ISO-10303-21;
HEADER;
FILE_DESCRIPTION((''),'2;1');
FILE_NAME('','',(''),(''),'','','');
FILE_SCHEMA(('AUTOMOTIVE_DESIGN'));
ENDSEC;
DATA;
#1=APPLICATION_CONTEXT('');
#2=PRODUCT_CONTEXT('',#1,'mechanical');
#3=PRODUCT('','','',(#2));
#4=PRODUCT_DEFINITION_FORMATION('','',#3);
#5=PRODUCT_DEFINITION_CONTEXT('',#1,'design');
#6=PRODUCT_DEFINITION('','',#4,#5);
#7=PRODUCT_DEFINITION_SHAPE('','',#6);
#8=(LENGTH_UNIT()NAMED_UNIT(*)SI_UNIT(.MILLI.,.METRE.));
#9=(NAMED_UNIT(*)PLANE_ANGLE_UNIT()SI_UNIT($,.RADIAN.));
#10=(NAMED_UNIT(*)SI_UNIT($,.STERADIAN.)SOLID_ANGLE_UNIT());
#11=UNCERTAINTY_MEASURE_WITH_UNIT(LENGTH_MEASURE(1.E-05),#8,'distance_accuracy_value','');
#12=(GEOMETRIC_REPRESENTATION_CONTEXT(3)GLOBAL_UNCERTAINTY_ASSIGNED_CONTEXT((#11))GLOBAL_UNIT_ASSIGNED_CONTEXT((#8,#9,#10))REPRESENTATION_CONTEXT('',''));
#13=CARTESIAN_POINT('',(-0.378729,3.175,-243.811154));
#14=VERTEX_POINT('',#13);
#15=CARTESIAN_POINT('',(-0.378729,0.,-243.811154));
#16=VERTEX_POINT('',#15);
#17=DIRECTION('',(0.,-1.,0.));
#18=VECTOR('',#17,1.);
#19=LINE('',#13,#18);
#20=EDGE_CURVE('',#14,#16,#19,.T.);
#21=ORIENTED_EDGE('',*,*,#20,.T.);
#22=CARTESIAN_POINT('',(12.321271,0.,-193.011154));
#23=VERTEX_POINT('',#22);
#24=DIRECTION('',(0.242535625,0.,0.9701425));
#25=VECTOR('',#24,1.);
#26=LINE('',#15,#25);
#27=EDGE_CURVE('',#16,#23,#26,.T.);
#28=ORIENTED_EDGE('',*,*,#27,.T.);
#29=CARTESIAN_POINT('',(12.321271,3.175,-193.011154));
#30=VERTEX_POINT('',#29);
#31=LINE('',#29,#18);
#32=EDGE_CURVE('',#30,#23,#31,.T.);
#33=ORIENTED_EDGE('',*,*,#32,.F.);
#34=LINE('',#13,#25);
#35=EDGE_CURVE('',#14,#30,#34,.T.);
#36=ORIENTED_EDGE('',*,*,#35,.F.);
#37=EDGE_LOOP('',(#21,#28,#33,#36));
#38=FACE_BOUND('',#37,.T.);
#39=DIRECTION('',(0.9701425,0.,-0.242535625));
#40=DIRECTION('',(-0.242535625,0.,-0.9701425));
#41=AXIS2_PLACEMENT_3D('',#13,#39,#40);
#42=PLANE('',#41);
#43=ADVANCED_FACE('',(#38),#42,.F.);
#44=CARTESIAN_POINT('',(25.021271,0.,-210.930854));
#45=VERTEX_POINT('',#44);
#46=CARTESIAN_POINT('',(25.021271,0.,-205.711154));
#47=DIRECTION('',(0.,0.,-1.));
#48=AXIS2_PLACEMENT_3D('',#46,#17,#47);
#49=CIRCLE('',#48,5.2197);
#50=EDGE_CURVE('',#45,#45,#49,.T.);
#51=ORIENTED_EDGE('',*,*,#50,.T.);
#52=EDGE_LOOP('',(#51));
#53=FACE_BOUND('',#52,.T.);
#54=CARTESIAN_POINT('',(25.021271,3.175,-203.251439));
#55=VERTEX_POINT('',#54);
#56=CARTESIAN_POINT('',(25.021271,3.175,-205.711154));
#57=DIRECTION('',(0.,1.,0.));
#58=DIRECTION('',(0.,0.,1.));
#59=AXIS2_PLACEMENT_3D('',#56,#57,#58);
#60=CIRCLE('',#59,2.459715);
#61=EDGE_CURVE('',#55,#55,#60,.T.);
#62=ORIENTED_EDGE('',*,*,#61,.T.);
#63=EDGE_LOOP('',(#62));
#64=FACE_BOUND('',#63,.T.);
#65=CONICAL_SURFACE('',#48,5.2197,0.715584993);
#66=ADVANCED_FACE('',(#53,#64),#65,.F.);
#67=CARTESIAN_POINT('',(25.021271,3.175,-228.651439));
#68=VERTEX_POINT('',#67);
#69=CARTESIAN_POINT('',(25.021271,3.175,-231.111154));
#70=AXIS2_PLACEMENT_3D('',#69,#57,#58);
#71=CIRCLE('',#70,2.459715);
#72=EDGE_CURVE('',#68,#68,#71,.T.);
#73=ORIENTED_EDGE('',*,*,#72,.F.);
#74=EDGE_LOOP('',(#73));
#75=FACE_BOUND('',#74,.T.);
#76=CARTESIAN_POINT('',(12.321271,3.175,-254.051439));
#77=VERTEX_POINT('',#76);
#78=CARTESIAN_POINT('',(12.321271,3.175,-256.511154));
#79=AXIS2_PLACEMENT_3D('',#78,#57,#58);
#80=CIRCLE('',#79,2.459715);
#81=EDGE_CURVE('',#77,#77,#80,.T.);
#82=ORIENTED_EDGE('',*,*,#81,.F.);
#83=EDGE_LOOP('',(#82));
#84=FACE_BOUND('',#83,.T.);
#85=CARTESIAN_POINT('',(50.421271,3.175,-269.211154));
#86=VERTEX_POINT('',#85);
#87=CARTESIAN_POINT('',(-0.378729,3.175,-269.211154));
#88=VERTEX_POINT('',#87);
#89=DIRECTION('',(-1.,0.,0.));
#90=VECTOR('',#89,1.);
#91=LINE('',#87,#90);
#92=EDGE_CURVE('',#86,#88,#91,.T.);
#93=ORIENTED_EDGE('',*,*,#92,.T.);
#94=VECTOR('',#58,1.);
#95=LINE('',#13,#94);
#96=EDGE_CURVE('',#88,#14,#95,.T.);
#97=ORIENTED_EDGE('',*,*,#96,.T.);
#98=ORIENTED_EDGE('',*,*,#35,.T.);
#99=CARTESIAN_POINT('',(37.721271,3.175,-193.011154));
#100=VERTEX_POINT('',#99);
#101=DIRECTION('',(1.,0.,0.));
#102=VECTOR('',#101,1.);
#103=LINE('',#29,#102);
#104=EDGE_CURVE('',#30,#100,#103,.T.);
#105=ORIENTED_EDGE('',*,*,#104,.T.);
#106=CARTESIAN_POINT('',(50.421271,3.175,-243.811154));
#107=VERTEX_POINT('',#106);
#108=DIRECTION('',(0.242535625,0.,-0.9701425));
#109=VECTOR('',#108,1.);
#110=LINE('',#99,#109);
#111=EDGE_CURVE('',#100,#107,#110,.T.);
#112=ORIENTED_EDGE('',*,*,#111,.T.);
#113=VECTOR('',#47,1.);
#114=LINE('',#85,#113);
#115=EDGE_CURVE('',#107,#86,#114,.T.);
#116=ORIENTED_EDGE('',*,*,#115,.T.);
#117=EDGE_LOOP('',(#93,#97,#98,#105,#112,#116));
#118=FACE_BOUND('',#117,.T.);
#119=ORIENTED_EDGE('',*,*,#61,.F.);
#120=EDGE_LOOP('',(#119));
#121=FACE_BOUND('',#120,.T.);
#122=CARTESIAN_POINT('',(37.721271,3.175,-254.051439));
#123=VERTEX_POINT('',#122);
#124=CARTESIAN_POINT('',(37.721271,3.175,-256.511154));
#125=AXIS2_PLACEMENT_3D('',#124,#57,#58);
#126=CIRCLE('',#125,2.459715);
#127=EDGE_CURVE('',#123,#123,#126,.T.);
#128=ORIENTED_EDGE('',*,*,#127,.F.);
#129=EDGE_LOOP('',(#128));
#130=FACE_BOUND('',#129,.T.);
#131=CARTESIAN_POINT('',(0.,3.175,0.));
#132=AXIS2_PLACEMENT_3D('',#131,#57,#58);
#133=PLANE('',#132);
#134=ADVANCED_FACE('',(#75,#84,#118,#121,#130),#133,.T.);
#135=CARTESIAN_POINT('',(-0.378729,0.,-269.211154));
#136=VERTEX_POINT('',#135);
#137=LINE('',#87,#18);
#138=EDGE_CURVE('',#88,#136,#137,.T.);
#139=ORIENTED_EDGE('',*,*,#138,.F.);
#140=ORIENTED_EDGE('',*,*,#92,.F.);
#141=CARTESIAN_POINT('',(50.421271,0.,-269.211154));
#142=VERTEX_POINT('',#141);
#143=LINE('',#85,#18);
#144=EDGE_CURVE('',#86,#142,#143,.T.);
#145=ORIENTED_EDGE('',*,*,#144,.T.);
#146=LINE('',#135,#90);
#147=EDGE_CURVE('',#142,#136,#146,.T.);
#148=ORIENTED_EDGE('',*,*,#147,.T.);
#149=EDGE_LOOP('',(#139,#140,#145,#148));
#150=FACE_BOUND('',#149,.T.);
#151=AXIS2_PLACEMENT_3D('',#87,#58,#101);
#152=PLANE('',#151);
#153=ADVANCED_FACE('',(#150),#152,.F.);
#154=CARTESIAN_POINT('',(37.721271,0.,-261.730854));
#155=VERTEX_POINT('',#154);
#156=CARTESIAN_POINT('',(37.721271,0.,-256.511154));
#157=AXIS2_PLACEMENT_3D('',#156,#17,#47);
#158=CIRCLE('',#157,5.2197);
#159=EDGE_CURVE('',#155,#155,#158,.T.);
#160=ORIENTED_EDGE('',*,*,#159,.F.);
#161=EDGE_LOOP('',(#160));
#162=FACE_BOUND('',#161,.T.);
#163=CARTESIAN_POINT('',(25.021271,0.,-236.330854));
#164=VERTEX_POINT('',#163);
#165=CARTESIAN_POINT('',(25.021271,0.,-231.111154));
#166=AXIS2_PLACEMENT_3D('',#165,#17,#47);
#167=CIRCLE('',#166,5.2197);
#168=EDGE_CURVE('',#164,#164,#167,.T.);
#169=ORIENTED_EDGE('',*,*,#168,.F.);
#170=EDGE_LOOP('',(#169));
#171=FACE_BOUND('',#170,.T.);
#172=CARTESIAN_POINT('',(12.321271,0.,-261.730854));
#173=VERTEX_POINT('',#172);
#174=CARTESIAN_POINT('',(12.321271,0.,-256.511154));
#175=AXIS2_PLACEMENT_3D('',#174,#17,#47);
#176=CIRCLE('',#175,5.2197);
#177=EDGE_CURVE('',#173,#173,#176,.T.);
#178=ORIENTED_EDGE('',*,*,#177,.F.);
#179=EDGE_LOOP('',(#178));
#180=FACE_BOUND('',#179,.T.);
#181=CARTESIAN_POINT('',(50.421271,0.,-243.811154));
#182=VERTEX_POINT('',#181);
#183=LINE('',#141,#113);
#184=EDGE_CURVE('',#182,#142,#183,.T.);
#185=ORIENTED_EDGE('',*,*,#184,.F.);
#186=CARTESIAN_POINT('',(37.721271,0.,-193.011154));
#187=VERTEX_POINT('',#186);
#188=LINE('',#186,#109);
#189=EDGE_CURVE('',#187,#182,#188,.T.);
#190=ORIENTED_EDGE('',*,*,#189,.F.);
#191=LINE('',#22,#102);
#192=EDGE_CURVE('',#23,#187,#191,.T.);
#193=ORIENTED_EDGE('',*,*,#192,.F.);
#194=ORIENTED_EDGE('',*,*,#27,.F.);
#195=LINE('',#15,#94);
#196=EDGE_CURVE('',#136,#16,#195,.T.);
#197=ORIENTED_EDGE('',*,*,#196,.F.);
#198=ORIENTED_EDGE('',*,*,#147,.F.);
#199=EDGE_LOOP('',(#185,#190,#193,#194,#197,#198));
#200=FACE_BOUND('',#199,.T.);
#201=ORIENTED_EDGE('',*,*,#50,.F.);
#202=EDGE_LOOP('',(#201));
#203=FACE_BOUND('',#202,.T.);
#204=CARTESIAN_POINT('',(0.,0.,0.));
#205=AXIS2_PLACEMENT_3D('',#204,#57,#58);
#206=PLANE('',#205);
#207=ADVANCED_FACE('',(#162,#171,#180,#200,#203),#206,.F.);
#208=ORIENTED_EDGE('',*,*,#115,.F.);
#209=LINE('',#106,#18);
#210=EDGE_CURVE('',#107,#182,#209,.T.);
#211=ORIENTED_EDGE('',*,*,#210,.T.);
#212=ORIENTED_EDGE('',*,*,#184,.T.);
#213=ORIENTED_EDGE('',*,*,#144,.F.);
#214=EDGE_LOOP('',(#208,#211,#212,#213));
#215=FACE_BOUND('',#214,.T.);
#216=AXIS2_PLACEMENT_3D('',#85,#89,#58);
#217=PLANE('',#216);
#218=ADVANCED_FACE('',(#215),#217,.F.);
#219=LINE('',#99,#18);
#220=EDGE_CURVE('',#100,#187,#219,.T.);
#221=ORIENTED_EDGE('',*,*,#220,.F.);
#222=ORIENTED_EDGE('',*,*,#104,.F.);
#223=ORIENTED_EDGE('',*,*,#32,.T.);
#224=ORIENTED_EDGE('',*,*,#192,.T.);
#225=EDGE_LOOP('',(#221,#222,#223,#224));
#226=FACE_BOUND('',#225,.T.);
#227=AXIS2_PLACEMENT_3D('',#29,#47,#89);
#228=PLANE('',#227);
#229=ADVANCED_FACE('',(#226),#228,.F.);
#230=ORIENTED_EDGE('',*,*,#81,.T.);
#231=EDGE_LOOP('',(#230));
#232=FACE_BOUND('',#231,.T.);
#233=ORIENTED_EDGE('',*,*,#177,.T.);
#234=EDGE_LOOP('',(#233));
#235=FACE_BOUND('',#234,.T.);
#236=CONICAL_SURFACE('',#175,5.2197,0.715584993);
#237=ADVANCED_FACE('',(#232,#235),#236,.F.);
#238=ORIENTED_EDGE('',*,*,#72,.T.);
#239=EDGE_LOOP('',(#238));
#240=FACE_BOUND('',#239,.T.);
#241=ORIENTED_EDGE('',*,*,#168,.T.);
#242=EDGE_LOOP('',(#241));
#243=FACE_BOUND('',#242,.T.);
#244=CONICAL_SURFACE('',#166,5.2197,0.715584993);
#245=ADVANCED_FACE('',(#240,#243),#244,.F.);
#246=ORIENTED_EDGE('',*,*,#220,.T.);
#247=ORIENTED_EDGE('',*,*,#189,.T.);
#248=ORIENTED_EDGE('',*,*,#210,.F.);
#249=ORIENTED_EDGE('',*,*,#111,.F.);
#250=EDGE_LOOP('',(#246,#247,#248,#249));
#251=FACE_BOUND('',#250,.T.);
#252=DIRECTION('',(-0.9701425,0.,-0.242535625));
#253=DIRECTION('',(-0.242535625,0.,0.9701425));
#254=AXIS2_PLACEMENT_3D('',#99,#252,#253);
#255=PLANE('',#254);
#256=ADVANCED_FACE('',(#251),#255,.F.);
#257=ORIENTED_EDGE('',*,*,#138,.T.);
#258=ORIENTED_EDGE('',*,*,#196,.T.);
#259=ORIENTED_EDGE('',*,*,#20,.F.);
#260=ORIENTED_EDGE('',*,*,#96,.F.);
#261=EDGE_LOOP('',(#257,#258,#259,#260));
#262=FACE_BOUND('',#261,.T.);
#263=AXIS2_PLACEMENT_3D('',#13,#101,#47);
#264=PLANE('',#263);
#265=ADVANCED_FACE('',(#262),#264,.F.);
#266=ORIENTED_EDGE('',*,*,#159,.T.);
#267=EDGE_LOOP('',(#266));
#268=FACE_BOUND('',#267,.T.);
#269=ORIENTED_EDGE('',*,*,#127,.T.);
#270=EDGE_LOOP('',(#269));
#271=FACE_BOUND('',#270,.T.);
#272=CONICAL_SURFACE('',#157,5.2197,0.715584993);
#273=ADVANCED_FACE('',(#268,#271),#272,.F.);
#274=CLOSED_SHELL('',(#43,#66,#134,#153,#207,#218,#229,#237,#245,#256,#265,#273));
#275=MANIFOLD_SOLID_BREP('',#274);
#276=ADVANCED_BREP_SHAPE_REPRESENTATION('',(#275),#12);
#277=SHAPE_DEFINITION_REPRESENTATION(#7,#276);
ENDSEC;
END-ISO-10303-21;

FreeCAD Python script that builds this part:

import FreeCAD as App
import Part
import Sketcher
from FreeCAD import Vector
Q = App.Units.Quantity

doc = App.newDocument("Part")
body = doc.addObject("PartDesign::Body", "Body")

sketch1 = body.newObject("Sketcher::SketchObject", "Sketch")
sketch1.AttachmentSupport = (doc.getObject("XZ_Plane"), [""])
sketch1.MapMode = "FlatFace"
sketch1.addGeometry([
    Part.LineSegment(Vector(50, -269, 0), Vector(0, -269, 0)),
    Part.LineSegment(Vector(0, -269, 0), Vector(0, -244, 0)),
    Part.LineSegment(Vector(0, -244, 0), Vector(12, -193, 0)),
    Part.LineSegment(Vector(12, -193, 0), Vector(38, -193, 0)),
    Part.LineSegment(Vector(38, -193, 0), Vector(50, -244, 0)),
    Part.LineSegment(Vector(50, -244, 0), Vector(50, -269, 0)),
], False)
sketch1.addConstraint([
    Sketcher.Constraint("Coincident", 0, 2, 1, 1),
    Sketcher.Constraint("Coincident", 1, 2, 2, 1),
    Sketcher.Constraint("Coincident", 2, 2, 3, 1),
    Sketcher.Constraint("Coincident", 3, 2, 4, 1),
    Sketcher.Constraint("Coincident", 4, 2, 5, 1),
    Sketcher.Constraint("Coincident", 5, 2, 0, 1),
    Sketcher.Constraint("Horizontal", 0),
    Sketcher.Constraint("Vertical", 1),
    Sketcher.Constraint("Horizontal", 3),
    Sketcher.Constraint("Vertical", 5),
    Sketcher.Constraint("Horizontal", 1, 2, 4, 2),
    Sketcher.Constraint("Equal", 3, 1),
    Sketcher.Constraint("Equal", 2, 4),
    Sketcher.Constraint("DistanceX", 0, 2, 0, 1, Q("2 in")),
    Sketcher.Constraint("DistanceX", 3, 1, 3, 2, Q("1 in")),
    Sketcher.Constraint("DistanceY", 1, 2, 2, 2, Q("2 in")),
    Sketcher.Constraint("DistanceX", 0, 2, -1, 1, Q("0.378729 mm")),
    Sketcher.Constraint("DistanceY", 0, 2, -1, 1, Q("269.211154 mm")),
])
pad1 = body.newObject("PartDesign::Pad", "Pad")
pad1.Profile = sketch1
pad1.Length = Q("0.125 in")
pad1.Reversed = True

sketch2 = body.newObject("Sketcher::SketchObject", "Sketch001")
sketch2.AttachmentSupport = (doc.getObject("YZ_Plane"), [""])
sketch2.MapMode = "FlatFace"
sketch2.AttachmentOffset = App.Placement(Vector(0, 0, 37.721271), App.Rotation())
sketch2.addGeometry([
    Part.LineSegment(Vector(3.175, -256.5112, 0), Vector(0, -256.5112, 0)),
    Part.LineSegment(Vector(0, -256.5112, 0), Vector(0, -261.7309, 0)),
    Part.LineSegment(Vector(0, -261.7309, 0), Vector(3.1776, -258.9686, 0)),
    Part.LineSegment(Vector(3.1776, -258.9686, 0), Vector(3.175, -258.9686, 0)),
    Part.LineSegment(Vector(3.175, -258.9686, 0), Vector(3.175, -256.5112, 0)),
], False)
sketch2.addGeometry(Part.LineSegment(Vector(0, -256.5112, 0), Vector(3.1776, -256.5112, 0)), True)
sketch2.addConstraint([
    Sketcher.Constraint("Coincident", 0, 2, 1, 1),
    Sketcher.Constraint("Coincident", 1, 2, 2, 1),
    Sketcher.Constraint("Coincident", 2, 2, 3, 1),
    Sketcher.Constraint("Coincident", 3, 2, 4, 1),
    Sketcher.Constraint("Coincident", 4, 2, 0, 1),
    Sketcher.Constraint("Horizontal", 0),
    Sketcher.Constraint("Vertical", 1),
    Sketcher.Constraint("Horizontal", 3),
    Sketcher.Constraint("Vertical", 4),
    Sketcher.Constraint("Horizontal", 5),
    Sketcher.Constraint("Coincident", 5, 1, 0, 2),
    Sketcher.Constraint("PointOnObject", 0, 2, -2),
    Sketcher.Constraint("Vertical", 2, 2, 5, 2),
    Sketcher.Constraint("Angle", 2, Q("41 deg")),
    Sketcher.Constraint("DistanceX", 0, 2, 0, 1, Q("0.125 in")),
    Sketcher.Constraint("DistanceY", 1, 2, 1, 1, Q("0.2055 in")),
    Sketcher.Constraint("DistanceY", 4, 1, 4, 2, Q("2.45745 mm")),
    Sketcher.Constraint("DistanceY", 0, 2, -1, 1, Q("256.511154 mm")),
])
groove = body.newObject("PartDesign::Groove", "Groove")
groove.Profile = sketch2
groove.ReferenceAxis = (sketch2, ["Axis0"])
groove.Angle = 360
doc.recompute()

linearpattern = body.newObject("PartDesign::LinearPattern", "LinearPattern")
linearpattern.Originals = [groove]
linearpattern.Direction = (doc.getObject("X_Axis"), [""])
linearpattern.Mode = "offset"
linearpattern.Offset = Q("1 in")
linearpattern.Occurrences = 2
linearpattern.Reversed = True
body.Tip = linearpattern
doc.recompute()

datumline = body.newObject("PartDesign::Line", "DatumLine")
datumline.Placement = App.Placement(Vector(0, 0, 0), App.Rotation(Vector(0, 0, 1), Vector(-0.447213595, 0, 0.894427191)))
linearpattern2 = body.newObject("PartDesign::LinearPattern", "LinearPattern001")
linearpattern2.Originals = [groove]
linearpattern2.Direction = (datumline, [""])
linearpattern2.Mode = "offset"
linearpattern2.Offset = 28.398063
linearpattern2.Occurrences = 2
body.Tip = linearpattern2
doc.recompute()

datumline2 = body.newObject("PartDesign::Line", "DatumLine001")
datumline2.Placement = App.Placement(Vector(0, 0, 0), App.Rotation(Vector(0, 0, 1), Vector(-0.242535625, 0, 0.9701425)))
linearpattern3 = body.newObject("PartDesign::LinearPattern", "LinearPattern002")
linearpattern3.Originals = [groove]
linearpattern3.Direction = (datumline2, [""])
linearpattern3.Mode = "offset"
linearpattern3.Offset = 52.363441
linearpattern3.Occurrences = 2
body.Tip = linearpattern3

doc.recompute()
